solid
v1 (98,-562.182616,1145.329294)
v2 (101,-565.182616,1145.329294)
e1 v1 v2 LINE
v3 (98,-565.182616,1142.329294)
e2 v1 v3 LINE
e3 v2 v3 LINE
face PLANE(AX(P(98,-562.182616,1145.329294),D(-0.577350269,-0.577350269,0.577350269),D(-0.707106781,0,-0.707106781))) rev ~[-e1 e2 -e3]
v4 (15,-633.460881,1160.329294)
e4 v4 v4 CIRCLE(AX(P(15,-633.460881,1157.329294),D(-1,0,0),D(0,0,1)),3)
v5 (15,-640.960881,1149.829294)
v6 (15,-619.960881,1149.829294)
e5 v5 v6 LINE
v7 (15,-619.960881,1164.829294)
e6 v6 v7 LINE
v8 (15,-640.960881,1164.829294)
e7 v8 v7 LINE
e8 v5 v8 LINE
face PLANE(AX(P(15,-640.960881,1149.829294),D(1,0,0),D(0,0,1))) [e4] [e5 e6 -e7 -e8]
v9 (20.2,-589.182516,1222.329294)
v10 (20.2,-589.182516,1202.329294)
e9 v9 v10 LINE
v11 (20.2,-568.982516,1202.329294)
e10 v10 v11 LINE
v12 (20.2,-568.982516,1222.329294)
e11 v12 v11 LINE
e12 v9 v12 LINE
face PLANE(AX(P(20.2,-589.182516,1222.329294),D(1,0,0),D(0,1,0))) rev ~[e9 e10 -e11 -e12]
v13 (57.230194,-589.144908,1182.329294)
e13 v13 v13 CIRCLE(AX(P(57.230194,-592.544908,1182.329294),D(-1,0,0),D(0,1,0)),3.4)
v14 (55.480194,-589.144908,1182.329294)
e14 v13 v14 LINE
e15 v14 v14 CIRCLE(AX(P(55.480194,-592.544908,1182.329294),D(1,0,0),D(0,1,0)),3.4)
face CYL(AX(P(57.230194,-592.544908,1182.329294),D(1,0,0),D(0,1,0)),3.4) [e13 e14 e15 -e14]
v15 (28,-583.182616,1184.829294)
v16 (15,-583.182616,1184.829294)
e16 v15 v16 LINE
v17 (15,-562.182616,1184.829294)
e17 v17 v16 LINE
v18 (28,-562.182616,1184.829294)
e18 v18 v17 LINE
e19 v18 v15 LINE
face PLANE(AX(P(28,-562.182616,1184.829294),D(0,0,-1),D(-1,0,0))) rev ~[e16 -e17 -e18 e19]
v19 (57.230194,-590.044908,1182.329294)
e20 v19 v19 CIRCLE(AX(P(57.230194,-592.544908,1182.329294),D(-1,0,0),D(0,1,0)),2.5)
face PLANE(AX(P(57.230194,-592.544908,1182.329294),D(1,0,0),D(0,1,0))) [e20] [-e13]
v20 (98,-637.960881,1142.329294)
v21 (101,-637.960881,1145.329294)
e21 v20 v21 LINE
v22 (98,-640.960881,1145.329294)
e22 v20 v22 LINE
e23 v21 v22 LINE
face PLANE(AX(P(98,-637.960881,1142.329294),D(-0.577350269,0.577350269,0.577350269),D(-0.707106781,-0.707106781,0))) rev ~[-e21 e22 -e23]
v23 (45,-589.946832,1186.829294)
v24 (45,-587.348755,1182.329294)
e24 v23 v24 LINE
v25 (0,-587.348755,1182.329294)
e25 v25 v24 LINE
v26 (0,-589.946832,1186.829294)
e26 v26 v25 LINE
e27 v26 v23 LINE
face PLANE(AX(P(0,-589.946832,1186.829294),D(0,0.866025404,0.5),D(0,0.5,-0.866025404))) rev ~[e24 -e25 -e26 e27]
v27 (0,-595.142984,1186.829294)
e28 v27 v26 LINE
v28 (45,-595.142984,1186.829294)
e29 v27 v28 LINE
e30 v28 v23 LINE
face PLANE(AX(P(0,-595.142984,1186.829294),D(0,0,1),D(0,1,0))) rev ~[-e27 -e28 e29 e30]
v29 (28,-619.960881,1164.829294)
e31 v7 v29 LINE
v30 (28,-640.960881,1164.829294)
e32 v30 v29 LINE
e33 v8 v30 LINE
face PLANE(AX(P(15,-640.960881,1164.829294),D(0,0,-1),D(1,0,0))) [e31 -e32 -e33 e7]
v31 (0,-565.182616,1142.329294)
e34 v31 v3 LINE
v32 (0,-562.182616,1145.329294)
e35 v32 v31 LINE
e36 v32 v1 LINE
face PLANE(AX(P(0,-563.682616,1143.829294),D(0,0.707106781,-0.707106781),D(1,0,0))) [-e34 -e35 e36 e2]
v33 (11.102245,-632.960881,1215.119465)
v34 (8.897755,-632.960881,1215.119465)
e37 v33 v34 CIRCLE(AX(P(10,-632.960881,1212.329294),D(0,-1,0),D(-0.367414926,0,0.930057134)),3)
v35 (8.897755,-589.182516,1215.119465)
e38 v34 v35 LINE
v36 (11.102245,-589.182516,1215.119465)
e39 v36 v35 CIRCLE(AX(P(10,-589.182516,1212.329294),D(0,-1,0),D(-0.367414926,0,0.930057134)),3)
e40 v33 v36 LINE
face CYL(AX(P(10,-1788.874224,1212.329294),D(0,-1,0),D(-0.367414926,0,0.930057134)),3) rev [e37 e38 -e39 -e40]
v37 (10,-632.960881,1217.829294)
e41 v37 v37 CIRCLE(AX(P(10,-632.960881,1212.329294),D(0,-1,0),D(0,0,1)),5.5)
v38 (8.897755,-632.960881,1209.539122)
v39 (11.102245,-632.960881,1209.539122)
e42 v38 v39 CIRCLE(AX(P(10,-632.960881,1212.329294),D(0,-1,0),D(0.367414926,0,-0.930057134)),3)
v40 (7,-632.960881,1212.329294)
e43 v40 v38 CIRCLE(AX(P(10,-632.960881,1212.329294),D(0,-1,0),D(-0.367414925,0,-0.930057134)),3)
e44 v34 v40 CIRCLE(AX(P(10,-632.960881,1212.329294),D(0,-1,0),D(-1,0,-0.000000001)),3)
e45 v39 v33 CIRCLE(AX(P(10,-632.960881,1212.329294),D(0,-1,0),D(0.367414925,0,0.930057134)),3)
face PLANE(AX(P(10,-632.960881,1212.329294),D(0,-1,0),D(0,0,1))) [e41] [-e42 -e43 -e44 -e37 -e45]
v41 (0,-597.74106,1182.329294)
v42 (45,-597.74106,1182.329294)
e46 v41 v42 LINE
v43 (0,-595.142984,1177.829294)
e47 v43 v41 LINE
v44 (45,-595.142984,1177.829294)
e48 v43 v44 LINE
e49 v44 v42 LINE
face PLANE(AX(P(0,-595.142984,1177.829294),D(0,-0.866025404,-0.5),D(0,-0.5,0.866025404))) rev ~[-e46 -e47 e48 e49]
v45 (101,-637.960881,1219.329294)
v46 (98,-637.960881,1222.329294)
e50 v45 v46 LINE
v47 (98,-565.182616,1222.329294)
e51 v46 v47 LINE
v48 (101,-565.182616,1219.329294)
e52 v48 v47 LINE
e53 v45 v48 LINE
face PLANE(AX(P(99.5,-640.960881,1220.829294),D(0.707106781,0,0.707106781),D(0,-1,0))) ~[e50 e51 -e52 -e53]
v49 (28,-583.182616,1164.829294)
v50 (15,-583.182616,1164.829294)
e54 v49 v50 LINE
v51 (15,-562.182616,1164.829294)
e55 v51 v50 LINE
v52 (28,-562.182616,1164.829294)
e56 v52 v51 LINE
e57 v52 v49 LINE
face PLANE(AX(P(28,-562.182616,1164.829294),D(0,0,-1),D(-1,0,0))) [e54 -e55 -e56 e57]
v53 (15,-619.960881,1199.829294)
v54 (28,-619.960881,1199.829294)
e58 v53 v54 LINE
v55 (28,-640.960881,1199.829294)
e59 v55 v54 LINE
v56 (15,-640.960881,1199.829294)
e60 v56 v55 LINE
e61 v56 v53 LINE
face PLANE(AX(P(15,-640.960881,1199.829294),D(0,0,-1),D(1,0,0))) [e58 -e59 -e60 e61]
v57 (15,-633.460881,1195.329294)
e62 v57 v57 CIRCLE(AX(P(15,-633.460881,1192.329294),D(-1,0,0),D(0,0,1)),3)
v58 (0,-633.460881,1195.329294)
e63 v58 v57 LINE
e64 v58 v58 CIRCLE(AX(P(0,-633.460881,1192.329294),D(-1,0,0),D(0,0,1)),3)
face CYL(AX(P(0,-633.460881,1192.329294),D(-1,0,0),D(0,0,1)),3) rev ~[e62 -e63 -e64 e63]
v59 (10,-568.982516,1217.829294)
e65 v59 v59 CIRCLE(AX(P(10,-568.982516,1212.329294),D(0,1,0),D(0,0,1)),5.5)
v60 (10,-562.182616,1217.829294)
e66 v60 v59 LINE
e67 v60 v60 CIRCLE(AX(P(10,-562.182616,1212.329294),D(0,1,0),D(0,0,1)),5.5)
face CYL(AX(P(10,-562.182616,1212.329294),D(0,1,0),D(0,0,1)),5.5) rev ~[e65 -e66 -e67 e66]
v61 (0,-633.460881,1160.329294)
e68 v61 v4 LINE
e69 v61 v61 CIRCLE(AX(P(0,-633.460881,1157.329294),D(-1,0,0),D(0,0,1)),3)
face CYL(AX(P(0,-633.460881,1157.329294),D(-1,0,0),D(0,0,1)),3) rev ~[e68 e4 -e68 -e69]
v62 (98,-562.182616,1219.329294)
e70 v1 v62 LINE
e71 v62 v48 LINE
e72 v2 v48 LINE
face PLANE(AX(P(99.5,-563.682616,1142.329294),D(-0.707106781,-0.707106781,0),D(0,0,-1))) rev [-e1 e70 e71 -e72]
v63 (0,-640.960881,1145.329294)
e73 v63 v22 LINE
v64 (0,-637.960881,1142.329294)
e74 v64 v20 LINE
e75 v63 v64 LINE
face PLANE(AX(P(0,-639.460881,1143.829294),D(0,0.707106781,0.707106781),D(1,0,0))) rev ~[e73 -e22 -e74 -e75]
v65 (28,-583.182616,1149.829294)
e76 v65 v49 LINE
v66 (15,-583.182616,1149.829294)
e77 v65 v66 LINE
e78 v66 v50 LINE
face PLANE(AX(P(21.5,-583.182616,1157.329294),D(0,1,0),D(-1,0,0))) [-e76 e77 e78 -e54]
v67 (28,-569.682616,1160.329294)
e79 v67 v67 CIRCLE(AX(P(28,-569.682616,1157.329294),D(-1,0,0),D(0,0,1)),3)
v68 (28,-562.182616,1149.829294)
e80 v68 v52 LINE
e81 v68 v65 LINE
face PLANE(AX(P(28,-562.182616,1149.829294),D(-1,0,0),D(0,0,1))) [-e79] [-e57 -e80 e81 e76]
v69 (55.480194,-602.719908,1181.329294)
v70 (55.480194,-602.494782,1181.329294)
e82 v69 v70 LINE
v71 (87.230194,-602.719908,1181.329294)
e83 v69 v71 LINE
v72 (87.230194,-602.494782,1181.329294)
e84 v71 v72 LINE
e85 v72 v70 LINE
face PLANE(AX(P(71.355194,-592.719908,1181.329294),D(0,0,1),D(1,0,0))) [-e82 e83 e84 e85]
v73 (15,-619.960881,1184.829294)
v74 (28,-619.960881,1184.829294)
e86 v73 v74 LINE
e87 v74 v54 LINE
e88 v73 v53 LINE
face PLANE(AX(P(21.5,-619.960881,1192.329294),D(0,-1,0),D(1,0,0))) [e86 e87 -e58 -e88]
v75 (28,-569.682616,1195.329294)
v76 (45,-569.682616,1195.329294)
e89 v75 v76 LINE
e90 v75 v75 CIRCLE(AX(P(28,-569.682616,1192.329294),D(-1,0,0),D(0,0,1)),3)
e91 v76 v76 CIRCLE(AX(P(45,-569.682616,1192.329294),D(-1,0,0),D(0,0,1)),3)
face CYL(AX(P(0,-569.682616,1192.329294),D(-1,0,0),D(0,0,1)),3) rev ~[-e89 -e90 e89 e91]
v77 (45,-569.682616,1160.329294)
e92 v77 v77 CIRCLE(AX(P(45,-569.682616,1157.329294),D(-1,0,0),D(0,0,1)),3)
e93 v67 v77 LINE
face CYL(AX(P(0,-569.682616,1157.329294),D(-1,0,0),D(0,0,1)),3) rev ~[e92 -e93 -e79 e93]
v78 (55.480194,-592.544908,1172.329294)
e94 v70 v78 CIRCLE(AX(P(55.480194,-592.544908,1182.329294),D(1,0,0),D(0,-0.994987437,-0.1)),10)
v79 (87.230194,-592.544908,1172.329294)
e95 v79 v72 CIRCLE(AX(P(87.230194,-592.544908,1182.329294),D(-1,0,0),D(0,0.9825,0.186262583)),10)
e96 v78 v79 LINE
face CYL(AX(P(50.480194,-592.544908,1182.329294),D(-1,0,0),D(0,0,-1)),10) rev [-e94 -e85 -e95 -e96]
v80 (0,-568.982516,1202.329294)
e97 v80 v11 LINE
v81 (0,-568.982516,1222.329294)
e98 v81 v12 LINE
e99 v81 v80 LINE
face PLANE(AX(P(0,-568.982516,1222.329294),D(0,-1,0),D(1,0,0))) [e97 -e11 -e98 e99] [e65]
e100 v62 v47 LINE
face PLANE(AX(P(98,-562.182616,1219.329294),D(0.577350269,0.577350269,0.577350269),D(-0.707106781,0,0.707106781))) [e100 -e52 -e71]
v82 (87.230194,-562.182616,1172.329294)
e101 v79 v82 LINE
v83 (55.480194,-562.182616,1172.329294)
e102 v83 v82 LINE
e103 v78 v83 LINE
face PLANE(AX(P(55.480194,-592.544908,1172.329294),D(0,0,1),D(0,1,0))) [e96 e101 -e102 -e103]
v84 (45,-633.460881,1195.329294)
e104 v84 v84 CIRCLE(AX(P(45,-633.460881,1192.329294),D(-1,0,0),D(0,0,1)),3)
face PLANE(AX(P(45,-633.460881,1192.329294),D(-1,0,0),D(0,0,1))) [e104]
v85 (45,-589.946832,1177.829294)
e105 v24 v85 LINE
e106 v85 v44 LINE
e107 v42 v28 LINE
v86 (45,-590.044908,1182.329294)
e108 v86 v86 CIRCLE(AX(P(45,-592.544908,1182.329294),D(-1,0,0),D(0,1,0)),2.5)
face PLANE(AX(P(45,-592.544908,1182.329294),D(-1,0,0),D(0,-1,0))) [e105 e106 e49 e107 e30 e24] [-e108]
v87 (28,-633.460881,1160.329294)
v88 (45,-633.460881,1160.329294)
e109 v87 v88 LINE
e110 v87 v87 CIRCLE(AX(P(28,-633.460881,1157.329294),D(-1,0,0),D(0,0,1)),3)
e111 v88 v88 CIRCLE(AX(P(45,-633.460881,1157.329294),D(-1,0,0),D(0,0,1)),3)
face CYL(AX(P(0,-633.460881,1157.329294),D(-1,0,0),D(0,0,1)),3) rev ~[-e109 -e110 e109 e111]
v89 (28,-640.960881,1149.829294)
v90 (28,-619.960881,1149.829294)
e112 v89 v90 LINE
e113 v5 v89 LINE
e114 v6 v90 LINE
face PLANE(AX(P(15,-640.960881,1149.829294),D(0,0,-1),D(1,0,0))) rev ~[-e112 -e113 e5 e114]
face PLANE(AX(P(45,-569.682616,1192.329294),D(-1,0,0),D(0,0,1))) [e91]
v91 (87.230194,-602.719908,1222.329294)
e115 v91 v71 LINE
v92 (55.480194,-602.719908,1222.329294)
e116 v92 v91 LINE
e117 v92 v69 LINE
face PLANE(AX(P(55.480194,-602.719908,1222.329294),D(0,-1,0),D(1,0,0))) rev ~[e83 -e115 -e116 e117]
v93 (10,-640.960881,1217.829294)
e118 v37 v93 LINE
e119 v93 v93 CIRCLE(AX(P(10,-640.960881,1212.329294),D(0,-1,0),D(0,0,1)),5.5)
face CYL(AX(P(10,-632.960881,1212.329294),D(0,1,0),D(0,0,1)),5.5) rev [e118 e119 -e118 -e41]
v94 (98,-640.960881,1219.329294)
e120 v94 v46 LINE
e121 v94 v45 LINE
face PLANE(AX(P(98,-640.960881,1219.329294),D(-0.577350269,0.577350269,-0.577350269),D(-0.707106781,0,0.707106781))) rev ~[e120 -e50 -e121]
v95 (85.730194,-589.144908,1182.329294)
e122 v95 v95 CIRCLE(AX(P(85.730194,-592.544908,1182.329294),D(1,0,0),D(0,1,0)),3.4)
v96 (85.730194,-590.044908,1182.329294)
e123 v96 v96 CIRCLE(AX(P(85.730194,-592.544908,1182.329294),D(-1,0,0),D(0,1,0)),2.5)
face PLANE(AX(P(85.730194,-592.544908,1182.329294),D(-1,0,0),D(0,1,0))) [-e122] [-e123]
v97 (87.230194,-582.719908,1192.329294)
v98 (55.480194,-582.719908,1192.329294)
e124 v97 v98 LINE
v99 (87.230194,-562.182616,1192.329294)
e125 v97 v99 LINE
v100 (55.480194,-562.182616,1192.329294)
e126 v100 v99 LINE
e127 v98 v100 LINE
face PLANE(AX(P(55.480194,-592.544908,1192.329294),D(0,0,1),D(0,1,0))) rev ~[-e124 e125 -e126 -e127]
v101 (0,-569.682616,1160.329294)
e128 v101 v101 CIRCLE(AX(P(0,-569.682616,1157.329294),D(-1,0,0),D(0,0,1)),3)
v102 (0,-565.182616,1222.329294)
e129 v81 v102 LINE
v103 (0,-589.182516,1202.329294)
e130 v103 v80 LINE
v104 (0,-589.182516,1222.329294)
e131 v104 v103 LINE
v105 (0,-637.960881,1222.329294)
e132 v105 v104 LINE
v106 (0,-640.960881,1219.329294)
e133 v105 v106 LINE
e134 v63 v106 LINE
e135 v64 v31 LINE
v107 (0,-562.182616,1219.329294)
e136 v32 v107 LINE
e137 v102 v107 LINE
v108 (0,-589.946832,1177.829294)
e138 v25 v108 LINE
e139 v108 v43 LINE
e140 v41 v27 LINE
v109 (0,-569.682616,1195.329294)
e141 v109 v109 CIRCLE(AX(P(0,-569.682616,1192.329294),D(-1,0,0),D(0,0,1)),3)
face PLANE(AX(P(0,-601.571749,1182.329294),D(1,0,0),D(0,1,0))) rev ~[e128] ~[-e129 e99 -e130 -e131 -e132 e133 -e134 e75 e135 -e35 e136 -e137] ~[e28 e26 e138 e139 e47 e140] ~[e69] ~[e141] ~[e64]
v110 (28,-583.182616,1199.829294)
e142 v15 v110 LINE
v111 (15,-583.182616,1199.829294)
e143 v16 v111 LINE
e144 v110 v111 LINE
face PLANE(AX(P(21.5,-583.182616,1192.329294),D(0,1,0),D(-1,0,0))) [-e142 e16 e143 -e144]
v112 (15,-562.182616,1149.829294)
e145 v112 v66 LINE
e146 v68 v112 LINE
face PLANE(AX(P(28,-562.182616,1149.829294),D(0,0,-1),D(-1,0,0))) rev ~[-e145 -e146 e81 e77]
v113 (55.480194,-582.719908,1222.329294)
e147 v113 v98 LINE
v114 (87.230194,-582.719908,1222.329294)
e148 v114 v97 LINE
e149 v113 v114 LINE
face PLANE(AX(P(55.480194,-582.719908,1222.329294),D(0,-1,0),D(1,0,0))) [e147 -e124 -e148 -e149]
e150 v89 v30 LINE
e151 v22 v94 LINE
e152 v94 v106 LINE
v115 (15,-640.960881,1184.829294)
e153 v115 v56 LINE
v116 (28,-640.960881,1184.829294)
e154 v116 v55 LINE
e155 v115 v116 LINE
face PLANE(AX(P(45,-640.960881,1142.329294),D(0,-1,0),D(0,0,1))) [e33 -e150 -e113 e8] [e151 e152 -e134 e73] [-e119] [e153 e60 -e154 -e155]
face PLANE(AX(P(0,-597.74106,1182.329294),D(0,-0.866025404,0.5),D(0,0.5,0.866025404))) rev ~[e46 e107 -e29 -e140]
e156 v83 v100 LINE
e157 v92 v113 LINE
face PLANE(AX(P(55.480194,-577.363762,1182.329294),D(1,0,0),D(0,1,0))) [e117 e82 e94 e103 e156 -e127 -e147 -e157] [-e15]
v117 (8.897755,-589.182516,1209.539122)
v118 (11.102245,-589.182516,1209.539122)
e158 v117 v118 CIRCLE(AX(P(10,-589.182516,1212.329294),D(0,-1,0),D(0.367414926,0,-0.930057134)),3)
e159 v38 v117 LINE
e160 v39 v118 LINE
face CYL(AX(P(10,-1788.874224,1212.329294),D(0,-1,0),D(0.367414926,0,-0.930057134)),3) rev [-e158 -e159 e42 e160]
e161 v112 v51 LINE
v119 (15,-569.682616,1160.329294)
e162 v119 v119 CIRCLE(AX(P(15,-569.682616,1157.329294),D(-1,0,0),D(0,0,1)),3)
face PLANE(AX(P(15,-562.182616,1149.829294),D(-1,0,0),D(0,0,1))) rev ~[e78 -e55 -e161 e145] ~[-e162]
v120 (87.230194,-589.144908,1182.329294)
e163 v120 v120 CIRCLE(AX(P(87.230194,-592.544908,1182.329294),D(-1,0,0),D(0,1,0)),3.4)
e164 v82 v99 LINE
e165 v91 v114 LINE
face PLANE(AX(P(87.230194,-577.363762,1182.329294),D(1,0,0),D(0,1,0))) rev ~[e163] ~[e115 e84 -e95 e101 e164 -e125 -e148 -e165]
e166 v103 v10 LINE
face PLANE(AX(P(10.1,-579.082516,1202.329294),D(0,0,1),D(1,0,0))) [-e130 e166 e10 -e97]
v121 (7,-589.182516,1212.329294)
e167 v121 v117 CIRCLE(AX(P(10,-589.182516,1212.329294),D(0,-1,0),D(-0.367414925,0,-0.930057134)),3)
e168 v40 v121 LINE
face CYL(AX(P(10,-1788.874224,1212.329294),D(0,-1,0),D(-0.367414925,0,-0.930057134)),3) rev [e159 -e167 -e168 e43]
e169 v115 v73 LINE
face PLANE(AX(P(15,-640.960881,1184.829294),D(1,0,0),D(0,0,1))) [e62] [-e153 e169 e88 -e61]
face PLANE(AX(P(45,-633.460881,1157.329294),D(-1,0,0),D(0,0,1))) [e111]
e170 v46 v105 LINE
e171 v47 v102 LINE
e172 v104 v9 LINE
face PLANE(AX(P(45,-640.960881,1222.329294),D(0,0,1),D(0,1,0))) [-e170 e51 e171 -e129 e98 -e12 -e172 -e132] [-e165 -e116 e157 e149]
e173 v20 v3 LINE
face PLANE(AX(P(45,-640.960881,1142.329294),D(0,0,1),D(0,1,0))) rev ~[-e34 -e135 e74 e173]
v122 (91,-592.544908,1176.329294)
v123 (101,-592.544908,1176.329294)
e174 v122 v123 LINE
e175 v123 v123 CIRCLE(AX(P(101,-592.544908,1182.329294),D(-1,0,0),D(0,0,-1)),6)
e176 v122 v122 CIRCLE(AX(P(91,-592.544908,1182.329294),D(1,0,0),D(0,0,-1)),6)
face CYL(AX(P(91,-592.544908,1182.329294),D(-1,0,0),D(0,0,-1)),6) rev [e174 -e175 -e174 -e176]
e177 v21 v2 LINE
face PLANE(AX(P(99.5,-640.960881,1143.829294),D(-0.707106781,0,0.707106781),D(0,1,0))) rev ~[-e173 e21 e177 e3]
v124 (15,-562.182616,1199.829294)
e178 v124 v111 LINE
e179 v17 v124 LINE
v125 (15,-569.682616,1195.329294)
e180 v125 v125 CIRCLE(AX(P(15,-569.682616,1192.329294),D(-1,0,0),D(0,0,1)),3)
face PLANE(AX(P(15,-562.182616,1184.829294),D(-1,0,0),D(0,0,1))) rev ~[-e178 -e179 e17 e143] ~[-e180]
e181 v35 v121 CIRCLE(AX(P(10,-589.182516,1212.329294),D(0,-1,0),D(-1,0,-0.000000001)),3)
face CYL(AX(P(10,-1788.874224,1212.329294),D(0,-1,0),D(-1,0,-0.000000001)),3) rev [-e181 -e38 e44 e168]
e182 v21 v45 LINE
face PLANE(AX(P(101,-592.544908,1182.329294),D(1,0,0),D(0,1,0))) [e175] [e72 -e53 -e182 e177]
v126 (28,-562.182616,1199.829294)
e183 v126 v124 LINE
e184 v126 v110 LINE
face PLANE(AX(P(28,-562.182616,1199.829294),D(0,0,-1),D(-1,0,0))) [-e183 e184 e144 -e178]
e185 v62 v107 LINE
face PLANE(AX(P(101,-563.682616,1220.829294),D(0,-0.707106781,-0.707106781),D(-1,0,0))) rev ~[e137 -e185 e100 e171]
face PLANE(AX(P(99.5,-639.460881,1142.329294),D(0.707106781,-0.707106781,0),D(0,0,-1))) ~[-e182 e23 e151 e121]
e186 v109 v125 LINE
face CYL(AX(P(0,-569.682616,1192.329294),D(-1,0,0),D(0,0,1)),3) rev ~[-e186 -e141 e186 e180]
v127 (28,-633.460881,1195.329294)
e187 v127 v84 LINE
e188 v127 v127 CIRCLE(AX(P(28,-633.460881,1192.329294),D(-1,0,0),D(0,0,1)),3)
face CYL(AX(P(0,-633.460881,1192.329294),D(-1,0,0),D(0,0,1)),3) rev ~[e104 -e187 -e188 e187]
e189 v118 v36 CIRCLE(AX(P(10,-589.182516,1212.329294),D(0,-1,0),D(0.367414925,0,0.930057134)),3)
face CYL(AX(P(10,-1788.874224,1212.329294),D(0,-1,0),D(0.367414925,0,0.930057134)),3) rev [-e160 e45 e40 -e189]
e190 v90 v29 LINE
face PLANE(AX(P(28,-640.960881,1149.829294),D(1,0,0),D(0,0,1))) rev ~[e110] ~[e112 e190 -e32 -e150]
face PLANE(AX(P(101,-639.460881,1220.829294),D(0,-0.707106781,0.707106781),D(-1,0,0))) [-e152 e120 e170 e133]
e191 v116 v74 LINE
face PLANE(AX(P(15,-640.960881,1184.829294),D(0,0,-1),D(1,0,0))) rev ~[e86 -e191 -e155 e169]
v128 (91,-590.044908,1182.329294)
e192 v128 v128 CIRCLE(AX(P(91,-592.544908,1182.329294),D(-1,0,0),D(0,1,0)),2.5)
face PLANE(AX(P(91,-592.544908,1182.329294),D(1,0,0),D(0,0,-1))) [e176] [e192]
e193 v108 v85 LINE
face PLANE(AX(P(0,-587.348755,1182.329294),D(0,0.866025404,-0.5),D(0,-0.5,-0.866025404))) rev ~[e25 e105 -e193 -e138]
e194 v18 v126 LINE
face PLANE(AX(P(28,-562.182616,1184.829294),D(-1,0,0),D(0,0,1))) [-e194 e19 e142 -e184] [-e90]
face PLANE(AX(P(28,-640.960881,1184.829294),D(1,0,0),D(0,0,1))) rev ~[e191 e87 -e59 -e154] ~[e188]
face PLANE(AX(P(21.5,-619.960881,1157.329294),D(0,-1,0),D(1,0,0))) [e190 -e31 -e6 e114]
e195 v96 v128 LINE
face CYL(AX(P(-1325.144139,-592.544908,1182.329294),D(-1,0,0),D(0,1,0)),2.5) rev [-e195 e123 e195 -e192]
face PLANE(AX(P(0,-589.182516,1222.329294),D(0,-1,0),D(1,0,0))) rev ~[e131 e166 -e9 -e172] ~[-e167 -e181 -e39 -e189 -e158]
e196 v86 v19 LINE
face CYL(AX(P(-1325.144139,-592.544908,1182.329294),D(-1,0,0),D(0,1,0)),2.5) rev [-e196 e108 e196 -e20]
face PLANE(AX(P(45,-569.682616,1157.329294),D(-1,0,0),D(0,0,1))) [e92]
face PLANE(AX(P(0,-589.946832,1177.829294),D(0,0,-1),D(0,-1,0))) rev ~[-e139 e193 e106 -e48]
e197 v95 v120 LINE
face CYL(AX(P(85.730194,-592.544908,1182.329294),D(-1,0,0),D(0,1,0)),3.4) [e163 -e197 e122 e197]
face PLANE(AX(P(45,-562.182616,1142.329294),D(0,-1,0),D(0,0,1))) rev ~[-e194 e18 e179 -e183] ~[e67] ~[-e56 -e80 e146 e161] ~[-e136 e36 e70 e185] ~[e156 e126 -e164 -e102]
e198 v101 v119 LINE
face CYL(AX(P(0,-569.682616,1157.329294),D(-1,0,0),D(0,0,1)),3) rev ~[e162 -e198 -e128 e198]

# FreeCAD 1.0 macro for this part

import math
import FreeCAD as App
import Part
import Sketcher

V = App.Vector
Q = App.Units.Quantity


def edges_at(feature, points):
    """Names of the edges that pass closest to the given points."""
    edges = feature.Shape.Edges
    near = lambda p: min(range(len(edges)), key=lambda i: edges[i].distToShape(Part.Vertex(*p))[0])
    return sorted({f"Edge{near(p) + 1}" for p in points})

doc = App.newDocument("Part")
body = doc.addObject("PartDesign::Body", "Body")

# Sketch on YZ plane
sketch1 = body.newObject("Sketcher::SketchObject", "Sketch")
sketch1.AttachmentSupport = (doc.getObject("YZ_Plane"), [""])
sketch1.MapMode = "FlatFace"
sketch1.addGeometry([
    Part.LineSegment(V(-641, 1222, 0), V(-641, 1142, 0)),
    Part.LineSegment(V(-641, 1142, 0), V(-562, 1142, 0)),
    Part.LineSegment(V(-562, 1142, 0), V(-562, 1222, 0)),
    Part.LineSegment(V(-562, 1222, 0), V(-641, 1222, 0)),
], False)
sketch1.addConstraint([
    Sketcher.Constraint("Coincident", 0, 2, 1, 1),
    Sketcher.Constraint("Coincident", 1, 2, 2, 1),
    Sketcher.Constraint("Coincident", 2, 2, 3, 1),
    Sketcher.Constraint("Coincident", 3, 2, 0, 1),
    Sketcher.Constraint("Vertical", 0),
    Sketcher.Constraint("Horizontal", 1),
    Sketcher.Constraint("Vertical", 2),
    Sketcher.Constraint("Horizontal", 3),
    Sketcher.Constraint("DistanceY", 0, 2, 0, 1, 80.0),
    Sketcher.Constraint("DistanceX", 1, 1, 1, 2, 78.778265),
    Sketcher.Constraint("DistanceX", 0, 2, -1, 1, 640.960881),
    Sketcher.Constraint("DistanceY", -1, 1, 0, 2, 1142.329294),
])
pad1 = body.newObject("PartDesign::Pad", "Pad")
pad1.Profile = sketch1
pad1.Length = 45

# Sketch on XY plane
sketch2 = body.newObject("Sketcher::SketchObject", "Sketch001")
sketch2.AttachmentSupport = (doc.getObject("XY_Plane"), [""])
sketch2.MapMode = "FlatFace"
sketch2.AttachmentOffset = App.Placement(V(0, 0, 1222.329294), App.Rotation())
sketch2.addGeometry([
    Part.LineSegment(V(0, -569, 0), V(0, -589, 0)),
    Part.LineSegment(V(0, -589, 0), V(20, -589, 0)),
    Part.LineSegment(V(20, -589, 0), V(20, -569, 0)),
    Part.LineSegment(V(20, -569, 0), V(0, -569, 0)),
], False)
sketch2.addConstraint([
    Sketcher.Constraint("Coincident", 0, 2, 1, 1),
    Sketcher.Constraint("Coincident", 1, 2, 2, 1),
    Sketcher.Constraint("Coincident", 2, 2, 3, 1),
    Sketcher.Constraint("Coincident", 3, 2, 0, 1),
    Sketcher.Constraint("Vertical", 0),
    Sketcher.Constraint("Horizontal", 1),
    Sketcher.Constraint("Vertical", 2),
    Sketcher.Constraint("Horizontal", 3),
    Sketcher.Constraint("PointOnObject", 0, 2, -2),
    Sketcher.Constraint("Equal", 3, 0),
    Sketcher.Constraint("DistanceX", 1, 1, 1, 2, 20.2),
    Sketcher.Constraint("DistanceY", 0, 2, -1, 1, 589.182516),
])
pocket1 = body.newObject("PartDesign::Pocket", "Pocket")
pocket1.Profile = sketch2
pocket1.Length = 20

# Sketch on XZ plane
sketch3 = body.newObject("Sketcher::SketchObject", "Sketch002")
sketch3.AttachmentSupport = (doc.getObject("XZ_Plane"), [""])
sketch3.MapMode = "FlatFace"
sketch3.AttachmentOffset = App.Placement(V(0, 0, 562.182616), App.Rotation())
sketch3.addGeometry([
    Part.ArcOfCircle(Part.Circle(V(10, 1212.3, 0), V(0, 0, 1), 3), math.radians(-68), math.radians(68)),  # 0
    Part.ArcOfCircle(Part.Circle(V(10, 1212.3, 0), V(0, 0, 1), 3), math.radians(-112), math.radians(-68)),  # 1
    Part.ArcOfCircle(Part.Circle(V(10, 1212.3, 0), V(0, 0, 1), 3), math.radians(180), math.radians(248)),  # 2
    Part.ArcOfCircle(Part.Circle(V(10, 1212.3, 0), V(0, 0, 1), 3), math.radians(112), math.radians(180)),  # 3
    Part.ArcOfCircle(Part.Circle(V(10, 1212.3, 0), V(0, 0, 1), 3), math.radians(68), math.radians(112)),  # 4
], False)
sketch3.addConstraint([
    Sketcher.Constraint("Tangent", 0, 1, 1, 2),
    Sketcher.Constraint("Tangent", 1, 1, 2, 2),
    Sketcher.Constraint("Tangent", 2, 1, 3, 2),
    Sketcher.Constraint("Tangent", 3, 1, 4, 2),
    Sketcher.Constraint("Tangent", 4, 1, 0, 2),
    Sketcher.Constraint("Coincident", 2, 3, 0, 3),
    Sketcher.Constraint("Horizontal", 0, 1, 1, 1),
    Sketcher.Constraint("Horizontal", 4, 3, 2, 1),
    Sketcher.Constraint("Horizontal", 3, 1, 4, 1),
    Sketcher.Constraint("Vertical", 1, 1, 3, 1),
    Sketcher.Constraint("Radius", 0, 3.0),
    Sketcher.Constraint("DistanceX", -1, 1, 0, 3, 10.0),
    Sketcher.Constraint("DistanceY", 0, 1, 1, 3, 2.790171),
    Sketcher.Constraint("DistanceY", -1, 1, 0, 3, 1212.329294),
])
pocket2 = body.newObject("PartDesign::Pocket", "Pocket001")
pocket2.Profile = sketch3
pocket2.Type = "ThroughAll"
pocket2.Midplane = True

# Sketch on YZ plane
sketch4 = body.newObject("Sketcher::SketchObject", "Sketch003")
sketch4.AttachmentSupport = (doc.getObject("YZ_Plane"), [""])
sketch4.MapMode = "FlatFace"
sketch4.AttachmentOffset = App.Placement(V(0, 0, 45), App.Rotation())
sketch4.addGeometry([
    Part.LineSegment(V(-641, 1222, 0), V(-641, 1142, 0)),
    Part.LineSegment(V(-641, 1142, 0), V(-562, 1142, 0)),
    Part.LineSegment(V(-562, 1142, 0), V(-562, 1222, 0)),
    Part.LineSegment(V(-562, 1222, 0), V(-641, 1222, 0)),
], False)
sketch4.addConstraint([
    Sketcher.Constraint("Coincident", 0, 2, 1, 1),
    Sketcher.Constraint("Coincident", 1, 2, 2, 1),
    Sketcher.Constraint("Coincident", 2, 2, 3, 1),
    Sketcher.Constraint("Coincident", 3, 2, 0, 1),
    Sketcher.Constraint("Vertical", 0),
    Sketcher.Constraint("Horizontal", 1),
    Sketcher.Constraint("Vertical", 2),
    Sketcher.Constraint("Horizontal", 3),
    Sketcher.Constraint("DistanceY", 0, 2, 0, 1, 80.0),
    Sketcher.Constraint("DistanceX", 1, 1, 1, 2, 78.778265),
    Sketcher.Constraint("DistanceX", 0, 2, -1, 1, 640.960881),
    Sketcher.Constraint("DistanceY", -1, 1, 0, 2, 1142.329294),
])
pad2 = body.newObject("PartDesign::Pad", "Pad001")
pad2.Profile = sketch4
pad2.Length = 56

# Sketch on YZ plane
sketch5 = body.newObject("Sketcher::SketchObject", "Sketch004")
sketch5.AttachmentSupport = (doc.getObject("YZ_Plane"), [""])
sketch5.MapMode = "FlatFace"
sketch5.AttachmentOffset = App.Placement(V(0, 0, 50.480194), App.Rotation())
sketch5.addGeometry(Part.Circle(V(-593, 1182, 0), V(0, 0, 1), 10), False)
sketch5.addConstraint([
    Sketcher.Constraint("Diameter", 0, 20.0),
    Sketcher.Constraint("DistanceX", 0, 3, -1, 1, 592.544908),
    Sketcher.Constraint("DistanceY", -1, 1, 0, 3, 1182.329294),
])
pocket3 = body.newObject("PartDesign::Pocket", "Pocket002")
pocket3.Profile = sketch5
pocket3.Length = 50.519818
pocket3.Reversed = True

# Sketch on YZ plane
sketch6 = body.newObject("Sketcher::SketchObject", "Sketch005")
sketch6.AttachmentSupport = (doc.getObject("YZ_Plane"), [""])
sketch6.MapMode = "FlatFace"
sketch6.AttachmentOffset = App.Placement(V(0, 0, 57.230194), App.Rotation())
sketch6.addGeometry(Part.Circle(V(-592.5, 1182.3, 0), V(0, 0, 1), 3.4), False)
sketch6.addConstraint([
    Sketcher.Constraint("Diameter", 0, 6.8),
    Sketcher.Constraint("DistanceX", 0, 3, -1, 1, 592.544908),
    Sketcher.Constraint("DistanceY", -1, 1, 0, 3, 1182.329294),
])
pad3 = body.newObject("PartDesign::Pad", "Pad002")
pad3.Profile = sketch6
pad3.Length = 12
pad3.Reversed = True

# Sketch on YZ plane
sketch7 = body.newObject("Sketcher::SketchObject", "Sketch006")
sketch7.AttachmentSupport = (doc.getObject("YZ_Plane"), [""])
sketch7.MapMode = "FlatFace"
sketch7.AttachmentOffset = App.Placement(V(0, 0, 50.480194), App.Rotation())
sketch7.addGeometry(Part.Circle(V(-593, 1182, 0), V(0, 0, 1), 10), False)
sketch7.addConstraint([
    Sketcher.Constraint("Diameter", 0, 20.0),
    Sketcher.Constraint("DistanceX", 0, 3, -1, 1, 592.544908),
    Sketcher.Constraint("DistanceY", -1, 1, 0, 3, 1182.329294),
])
pad4 = body.newObject("PartDesign::Pad", "Pad003")
pad4.Profile = sketch7
pad4.Length = 5
body2 = doc.addObject("PartDesign::Body", "Body001")

# Sketch on YZ plane
sketch8 = body2.newObject("Sketcher::SketchObject", "Sketch007")
sketch8.AttachmentSupport = (doc.getObject("YZ_Plane001"), [""])
sketch8.MapMode = "FlatFace"
sketch8.AttachmentOffset = App.Placement(V(0, 0, 85.730194), App.Rotation())
sketch8.addGeometry(Part.Circle(V(-592.5, 1182.3, 0), V(0, 0, 1), 3.4), False)
sketch8.addConstraint([
    Sketcher.Constraint("Diameter", 0, 6.8),
    Sketcher.Constraint("DistanceX", 0, 3, -1, 1, 592.544908),
    Sketcher.Constraint("DistanceY", -1, 1, 0, 3, 1182.329294),
])
pad5 = body2.newObject("PartDesign::Pad", "Pad004")
pad5.Profile = sketch8
pad5.Length = 1.5
body.AllowCompound = True
doc.recompute()

boolean = body.newObject("PartDesign::Boolean", "Boolean")
boolean.Type = "Fuse"
boolean.addObjects([body2])

# Sketch on YZ plane
sketch9 = body.newObject("Sketcher::SketchObject", "Sketch008")
sketch9.AttachmentSupport = (doc.getObject("YZ_Plane"), [""])
sketch9.MapMode = "FlatFace"
sketch9.AttachmentOffset = App.Placement(V(0, 0, 87.230194), App.Rotation())
sketch9.addGeometry(Part.Circle(V(-593, 1182, 0), V(0, 0, 1), 10), False)
sketch9.addConstraint([
    Sketcher.Constraint("Diameter", 0, 20.0),
    Sketcher.Constraint("DistanceX", 0, 3, -1, 1, 592.544908),
    Sketcher.Constraint("DistanceY", -1, 1, 0, 3, 1182.329294),
])
pad6 = body.newObject("PartDesign::Pad", "Pad005")
pad6.Profile = sketch9
pad6.Length = 13.769806

# Sketch on XY plane
sketch10 = body.newObject("Sketcher::SketchObject", "Sketch009")
sketch10.AttachmentSupport = (doc.getObject("XY_Plane"), [""])
sketch10.MapMode = "FlatFace"
sketch10.AttachmentOffset = App.Placement(V(0, 0, 1222.329294), App.Rotation())
sketch10.addGeometry([
    Part.LineSegment(V(55, -583, 0), V(55, -603, 0)),
    Part.LineSegment(V(55, -603, 0), V(87, -603, 0)),
    Part.LineSegment(V(87, -603, 0), V(87, -583, 0)),
    Part.LineSegment(V(87, -583, 0), V(55, -583, 0)),
], False)
sketch10.addConstraint([
    Sketcher.Constraint("Coincident", 0, 2, 1, 1),
    Sketcher.Constraint("Coincident", 1, 2, 2, 1),
    Sketcher.Constraint("Coincident", 2, 2, 3, 1),
    Sketcher.Constraint("Coincident", 3, 2, 0, 1),
    Sketcher.Constraint("Vertical", 0),
    Sketcher.Constraint("Horizontal", 1),
    Sketcher.Constraint("Vertical", 2),
    Sketcher.Constraint("Horizontal", 3),
    Sketcher.Constraint("DistanceY", 0, 2, 0, 1, 20.0),
    Sketcher.Constraint("DistanceX", 1, 1, 1, 2, 31.75),
    Sketcher.Constraint("DistanceX", -1, 1, 0, 2, 55.480194),
    Sketcher.Constraint("DistanceY", 0, 2, -1, 1, 602.719908),
])
pocket4 = body.newObject("PartDesign::Pocket", "Pocket003")
pocket4.Profile = sketch10
pocket4.Length = 41

# Sketch on YZ plane
sketch11 = body.newObject("Sketcher::SketchObject", "Sketch010")
sketch11.AttachmentSupport = (doc.getObject("YZ_Plane"), [""])
sketch11.MapMode = "FlatFace"
sketch11.AttachmentOffset = App.Placement(V(0, 0, 55.480194), App.Rotation())
sketch11.addGeometry([
    Part.LineSegment(V(-593, 1192, 0), V(-593, 1172, 0)),
    Part.LineSegment(V(-593, 1172, 0), V(-562, 1172, 0)),
    Part.LineSegment(V(-562, 1172, 0), V(-562, 1192, 0)),
    Part.LineSegment(V(-562, 1192, 0), V(-593, 1192, 0)),
], False)
sketch11.addConstraint([
    Sketcher.Constraint("Coincident", 0, 2, 1, 1),
    Sketcher.Constraint("Coincident", 1, 2, 2, 1),
    Sketcher.Constraint("Coincident", 2, 2, 3, 1),
    Sketcher.Constraint("Coincident", 3, 2, 0, 1),
    Sketcher.Constraint("Vertical", 0),
    Sketcher.Constraint("Horizontal", 1),
    Sketcher.Constraint("Vertical", 2),
    Sketcher.Constraint("Horizontal", 3),
    Sketcher.Constraint("DistanceY", 0, 2, 0, 1, 20.0),
    Sketcher.Constraint("DistanceX", 1, 1, 1, 2, 30.362292),
    Sketcher.Constraint("DistanceX", 0, 2, -1, 1, 592.544908),
    Sketcher.Constraint("DistanceY", -1, 1, 0, 2, 1172.329294),
])
pocket5 = body.newObject("PartDesign::Pocket", "Pocket004")
pocket5.Profile = sketch11
pocket5.Length = 31.75
pocket5.Reversed = True

# Sketch on YZ plane
sketch12 = body.newObject("Sketcher::SketchObject", "Sketch011")
sketch12.AttachmentSupport = (doc.getObject("YZ_Plane"), [""])
sketch12.MapMode = "FlatFace"
sketch12.AttachmentOffset = App.Placement(V(0, 0, 57.230194), App.Rotation())
sketch12.addGeometry(Part.Circle(V(-592.5, 1182.3, 0), V(0, 0, 1), 3.4), False)
sketch12.addConstraint([
    Sketcher.Constraint("Diameter", 0, 6.8),
    Sketcher.Constraint("DistanceX", 0, 3, -1, 1, 592.544908),
    Sketcher.Constraint("DistanceY", -1, 1, 0, 3, 1182.329294),
])
pad7 = body.newObject("PartDesign::Pad", "Pad006")
pad7.Profile = sketch12
pad7.Length = 14
pad7.Reversed = True

# Sketch on YZ plane
sketch13 = body.newObject("Sketcher::SketchObject", "Sketch012")
sketch13.AttachmentSupport = (doc.getObject("YZ_Plane"), [""])
sketch13.MapMode = "FlatFace"
sketch13.AttachmentOffset = App.Placement(V(0, 0, 85.730194), App.Rotation())
sketch13.addGeometry(Part.Circle(V(-592.5, 1182.3, 0), V(0, 0, 1), 3.4), False)
sketch13.addConstraint([
    Sketcher.Constraint("Diameter", 0, 6.8),
    Sketcher.Constraint("DistanceX", 0, 3, -1, 1, 592.544908),
    Sketcher.Constraint("DistanceY", -1, 1, 0, 3, 1182.329294),
])
pad8 = body.newObject("PartDesign::Pad", "Pad007")
pad8.Profile = sketch13
pad8.Length = 1.5

# Sketch on YZ plane
sketch14 = body.newObject("Sketcher::SketchObject", "Sketch013")
sketch14.AttachmentSupport = (doc.getObject("YZ_Plane"), [""])
sketch14.MapMode = "FlatFace"
sketch14.AttachmentOffset = App.Placement(V(0, 0, 57.230194), App.Rotation())
sketch14.addGeometry(Part.Circle(V(-592.5, 1182.3, 0), V(0, 0, 1), 2.5), False)
sketch14.addConstraint([
    Sketcher.Constraint("Diameter", 0, 5.0),
    Sketcher.Constraint("DistanceX", 0, 3, -1, 1, 592.544908),
    Sketcher.Constraint("DistanceY", -1, 1, 0, 3, 1182.329294),
])
pocket6 = body.newObject("PartDesign::Pocket", "Pocket005")
pocket6.Profile = sketch14
pocket6.Type = "ThroughAll"
pocket6.Midplane = True

# Sketch on YZ plane
sketch15 = body.newObject("Sketcher::SketchObject", "Sketch014")
sketch15.AttachmentSupport = (doc.getObject("YZ_Plane"), [""])
sketch15.MapMode = "FlatFace"
sketch15.AttachmentOffset = App.Placement(V(0, 0, 101), App.Rotation())
sketch15.addGeometry(Part.Circle(V(-593, 1182, 0), V(0, 0, 1), 6), False)
sketch15.addConstraint([
    Sketcher.Constraint("Diameter", 0, 12.0),
    Sketcher.Constraint("DistanceX", 0, 3, -1, 1, 592.544908),
    Sketcher.Constraint("DistanceY", -1, 1, 0, 3, 1182.329294),
])
pocket7 = body.newObject("PartDesign::Pocket", "Pocket006")
pocket7.Profile = sketch15
pocket7.Type = "TwoLengths"
pocket7.Length = 1384.87888
pocket7.Length2 = 10
pocket7.Reversed = True

# Sketch on YZ plane
sketch16 = body.newObject("Sketcher::SketchObject", "Sketch015")
sketch16.AttachmentSupport = (doc.getObject("YZ_Plane"), [""])
sketch16.MapMode = "FlatFace"
sketch16.addGeometry([
    Part.LineSegment(V(-590, 1178, 0), V(-595, 1178, 0)),  # 0
    Part.LineSegment(V(-595, 1178, 0), V(-598, 1182, 0)),  # 1
    Part.LineSegment(V(-598, 1182, 0), V(-595, 1187, 0)),  # 2
    Part.LineSegment(V(-595, 1187, 0), V(-590, 1187, 0)),  # 3
    Part.LineSegment(V(-590, 1187, 0), V(-587, 1182, 0)),  # 4
    Part.LineSegment(V(-587, 1182, 0), V(-590, 1178, 0)),  # 5
], False)
sketch16.addConstraint([
    Sketcher.Constraint("Coincident", 0, 2, 1, 1),
    Sketcher.Constraint("Coincident", 1, 2, 2, 1),
    Sketcher.Constraint("Coincident", 2, 2, 3, 1),
    Sketcher.Constraint("Coincident", 3, 2, 4, 1),
    Sketcher.Constraint("Coincident", 4, 2, 5, 1),
    Sketcher.Constraint("Coincident", 5, 2, 0, 1),
    Sketcher.Constraint("Horizontal", 0),
    Sketcher.Constraint("Horizontal", 3),
    Sketcher.Constraint("Parallel", 1, 4),
    Sketcher.Constraint("Parallel", 2, 5),
    Sketcher.Constraint("Horizontal", 1, 2, 4, 2),
    Sketcher.Constraint("Vertical", 0, 2, 2, 2),
    Sketcher.Constraint("Vertical", 3, 2, 5, 2),
    Sketcher.Constraint("Angle", 1, Q("120 deg")),
    Sketcher.Constraint("DistanceY", 0, 2, 2, 2, 9.0),
    Sketcher.Constraint("DistanceX", 0, 2, 0, 1, 5.196152),
    Sketcher.Constraint("DistanceX", 1, 2, -1, 1, 597.74106),
    Sketcher.Constraint("DistanceY", -1, 1, 0, 2, 1177.829294),
])
pocket8 = body.newObject("PartDesign::Pocket", "Pocket007")
pocket8.Profile = sketch16
pocket8.Length = 45
pocket8.Reversed = True

# Sketch on YZ plane
sketch17 = body.newObject("Sketcher::SketchObject", "Sketch016")
sketch17.AttachmentSupport = (doc.getObject("YZ_Plane"), [""])
sketch17.MapMode = "FlatFace"
sketch17.addGeometry([
    Part.Circle(V(-569.7, 1157.3, 0), V(0, 0, 1), 3),
    Part.Circle(V(-633.5, 1157.3, 0), V(0, 0, 1), 3),
    Part.Circle(V(-569.7, 1192.3, 0), V(0, 0, 1), 3),
    Part.Circle(V(-633.5, 1192.3, 0), V(0, 0, 1), 3),
], False)
sketch17.addConstraint([
    Sketcher.Constraint("Equal", 0, 1),
    Sketcher.Constraint("Equal", 1, 2),
    Sketcher.Constraint("Equal", 2, 3),
    Sketcher.Constraint("Horizontal", 0, 3, 1, 3),
    Sketcher.Constraint("Horizontal", 2, 3, 3, 3),
    Sketcher.Constraint("Vertical", 0, 3, 2, 3),
    Sketcher.Constraint("Vertical", 1, 3, 3, 3),
    Sketcher.Constraint("Diameter", 0, 6.0),
    Sketcher.Constraint("DistanceY", 0, 3, 2, 3, 35.0),
    Sketcher.Constraint("DistanceX", 1, 3, -1, 1, 633.460881),
    Sketcher.Constraint("DistanceX", 0, 3, -1, 1, 569.682616),
    Sketcher.Constraint("DistanceY", -1, 1, 0, 3, 1157.329294),
])
pocket9 = body.newObject("PartDesign::Pocket", "Pocket008")
pocket9.Profile = sketch17
pocket9.Length = 45
pocket9.Reversed = True

# Sketch on XZ plane
sketch18 = body.newObject("Sketcher::SketchObject", "Sketch017")
sketch18.AttachmentSupport = (doc.getObject("XZ_Plane"), [""])
sketch18.MapMode = "FlatFace"
sketch18.AttachmentOffset = App.Placement(V(0, 0, 562.182616), App.Rotation())
sketch18.addGeometry([
    Part.LineSegment(V(28, 1165, 0), V(28, 1150, 0)),  # 0
    Part.LineSegment(V(28, 1150, 0), V(15, 1150, 0)),  # 1
    Part.LineSegment(V(15, 1150, 0), V(15, 1165, 0)),  # 2
    Part.LineSegment(V(15, 1165, 0), V(28, 1165, 0)),  # 3
    Part.LineSegment(V(28, 1200, 0), V(28, 1185, 0)),  # 4
    Part.LineSegment(V(28, 1185, 0), V(15, 1185, 0)),  # 5
    Part.LineSegment(V(15, 1185, 0), V(15, 1200, 0)),  # 6
    Part.LineSegment(V(15, 1200, 0), V(28, 1200, 0)),  # 7
], False)
sketch18.addConstraint([
    Sketcher.Constraint("Coincident", 0, 2, 1, 1),
    Sketcher.Constraint("Coincident", 1, 2, 2, 1),
    Sketcher.Constraint("Coincident", 2, 2, 3, 1),
    Sketcher.Constraint("Coincident", 3, 2, 0, 1),
    Sketcher.Constraint("Coincident", 4, 2, 5, 1),
    Sketcher.Constraint("Coincident", 5, 2, 6, 1),
    Sketcher.Constraint("Coincident", 6, 2, 7, 1),
    Sketcher.Constraint("Coincident", 7, 2, 4, 1),
    Sketcher.Constraint("Vertical", 0),
    Sketcher.Constraint("Horizontal", 1),
    Sketcher.Constraint("Vertical", 2),
    Sketcher.Constraint("Horizontal", 3),
    Sketcher.Constraint("Vertical", 4),
    Sketcher.Constraint("Horizontal", 5),
    Sketcher.Constraint("Vertical", 6),
    Sketcher.Constraint("Horizontal", 7),
    Sketcher.Constraint("Vertical", 3, 2, 4, 2),
    Sketcher.Constraint("Vertical", 2, 2, 5, 2),
    Sketcher.Constraint("Equal", 2, 4),
    Sketcher.Constraint("DistanceX", 1, 2, 1, 1, 13.0),
    Sketcher.Constraint("DistanceY", 0, 2, 0, 1, 15.0),
    Sketcher.Constraint("DistanceX", -1, 1, 0, 2, 28.0),
    Sketcher.Constraint("DistanceY", 3, 2, 4, 2, 20.0),
    Sketcher.Constraint("DistanceY", -1, 1, 0, 2, 1149.829294),
])
pocket10 = body.newObject("PartDesign::Pocket", "Pocket009")
pocket10.Profile = sketch18
pocket10.Length = 21
pocket10.Reversed = True

# Sketch on XZ plane
sketch19 = body.newObject("Sketcher::SketchObject", "Sketch018")
sketch19.AttachmentSupport = (doc.getObject("XZ_Plane"), [""])
sketch19.MapMode = "FlatFace"
sketch19.AttachmentOffset = App.Placement(V(0, 0, 640.960881), App.Rotation())
sketch19.addGeometry([
    Part.LineSegment(V(15, 1165, 0), V(15, 1150, 0)),  # 0
    Part.LineSegment(V(15, 1150, 0), V(28, 1150, 0)),  # 1
    Part.LineSegment(V(28, 1150, 0), V(28, 1165, 0)),  # 2
    Part.LineSegment(V(28, 1165, 0), V(15, 1165, 0)),  # 3
    Part.LineSegment(V(15, 1200, 0), V(15, 1185, 0)),  # 4
    Part.LineSegment(V(15, 1185, 0), V(28, 1185, 0)),  # 5
    Part.LineSegment(V(28, 1185, 0), V(28, 1200, 0)),  # 6
    Part.LineSegment(V(28, 1200, 0), V(15, 1200, 0)),  # 7
], False)
sketch19.addConstraint([
    Sketcher.Constraint("Coincident", 0, 2, 1, 1),
    Sketcher.Constraint("Coincident", 1, 2, 2, 1),
    Sketcher.Constraint("Coincident", 2, 2, 3, 1),
    Sketcher.Constraint("Coincident", 3, 2, 0, 1),
    Sketcher.Constraint("Coincident", 4, 2, 5, 1),
    Sketcher.Constraint("Coincident", 5, 2, 6, 1),
    Sketcher.Constraint("Coincident", 6, 2, 7, 1),
    Sketcher.Constraint("Coincident", 7, 2, 4, 1),
    Sketcher.Constraint("Vertical", 0),
    Sketcher.Constraint("Horizontal", 1),
    Sketcher.Constraint("Vertical", 2),
    Sketcher.Constraint("Horizontal", 3),
    Sketcher.Constraint("Vertical", 4),
    Sketcher.Constraint("Horizontal", 5),
    Sketcher.Constraint("Vertical", 6),
    Sketcher.Constraint("Horizontal", 7),
    Sketcher.Constraint("Vertical", 3, 2, 4, 2),
    Sketcher.Constraint("Vertical", 2, 2, 5, 2),
    Sketcher.Constraint("Equal", 2, 4),
    Sketcher.Constraint("DistanceX", 1, 1, 1, 2, 13.0),
    Sketcher.Constraint("DistanceY", 0, 2, 0, 1, 15.0),
    Sketcher.Constraint("DistanceX", -1, 1, 0, 2, 15.0),
    Sketcher.Constraint("DistanceY", 3, 2, 4, 2, 20.0),
    Sketcher.Constraint("DistanceY", -1, 1, 0, 2, 1149.829294),
])
pocket11 = body.newObject("PartDesign::Pocket", "Pocket010")
pocket11.Profile = sketch19
pocket11.Length = 21
doc.recompute()

chamfer = body.newObject("PartDesign::Chamfer", "Chamfer")
chamfer.Base = (pocket11, edges_at(pocket11, [
    (101, -601.572, 1222.329),
    (101, -640.961, 1182.329),
    (101, -601.572, 1142.329),
    (101, -562.183, 1182.329),
    (50.5, -640.961, 1222.329),
    (50.5, -562.183, 1222.329),
    (50.5, -562.183, 1142.329),
    (50.5, -640.961, 1142.329),
]))
chamfer.Size = 3

# Sketch on XZ plane
sketch20 = body.newObject("Sketcher::SketchObject", "Sketch019")
sketch20.AttachmentSupport = (doc.getObject("XZ_Plane"), [""])
sketch20.MapMode = "FlatFace"
sketch20.AttachmentOffset = App.Placement(V(0, 0, 562.182616), App.Rotation())
sketch20.addGeometry(Part.Circle(V(10, 1212, 0), V(0, 0, 1), 6), False)
sketch20.addConstraint([
    Sketcher.Constraint("Diameter", 0, 11.0),
    Sketcher.Constraint("DistanceX", -1, 1, 0, 3, 10.0),
    Sketcher.Constraint("DistanceY", -1, 1, 0, 3, 1212.329294),
])
pocket12 = body.newObject("PartDesign::Pocket", "Pocket011")
pocket12.Profile = sketch20
pocket12.Length = 8
pocket12.Reversed = True

# Sketch on XZ plane
sketch21 = body.newObject("Sketcher::SketchObject", "Sketch020")
sketch21.AttachmentSupport = (doc.getObject("XZ_Plane"), [""])
sketch21.MapMode = "FlatFace"
sketch21.AttachmentOffset = App.Placement(V(0, 0, 632.960881), App.Rotation())
sketch21.addGeometry(Part.Circle(V(10, 1212, 0), V(0, 0, 1), 6), False)
sketch21.addConstraint([
    Sketcher.Constraint("Diameter", 0, 11.0),
    Sketcher.Constraint("DistanceX", -1, 1, 0, 3, 10.0),
    Sketcher.Constraint("DistanceY", -1, 1, 0, 3, 1212.329294),
])
pocket13 = body.newObject("PartDesign::Pocket", "Pocket012")
pocket13.Profile = sketch21
pocket13.Length = 8
pocket13.Reversed = True

doc.recompute()
